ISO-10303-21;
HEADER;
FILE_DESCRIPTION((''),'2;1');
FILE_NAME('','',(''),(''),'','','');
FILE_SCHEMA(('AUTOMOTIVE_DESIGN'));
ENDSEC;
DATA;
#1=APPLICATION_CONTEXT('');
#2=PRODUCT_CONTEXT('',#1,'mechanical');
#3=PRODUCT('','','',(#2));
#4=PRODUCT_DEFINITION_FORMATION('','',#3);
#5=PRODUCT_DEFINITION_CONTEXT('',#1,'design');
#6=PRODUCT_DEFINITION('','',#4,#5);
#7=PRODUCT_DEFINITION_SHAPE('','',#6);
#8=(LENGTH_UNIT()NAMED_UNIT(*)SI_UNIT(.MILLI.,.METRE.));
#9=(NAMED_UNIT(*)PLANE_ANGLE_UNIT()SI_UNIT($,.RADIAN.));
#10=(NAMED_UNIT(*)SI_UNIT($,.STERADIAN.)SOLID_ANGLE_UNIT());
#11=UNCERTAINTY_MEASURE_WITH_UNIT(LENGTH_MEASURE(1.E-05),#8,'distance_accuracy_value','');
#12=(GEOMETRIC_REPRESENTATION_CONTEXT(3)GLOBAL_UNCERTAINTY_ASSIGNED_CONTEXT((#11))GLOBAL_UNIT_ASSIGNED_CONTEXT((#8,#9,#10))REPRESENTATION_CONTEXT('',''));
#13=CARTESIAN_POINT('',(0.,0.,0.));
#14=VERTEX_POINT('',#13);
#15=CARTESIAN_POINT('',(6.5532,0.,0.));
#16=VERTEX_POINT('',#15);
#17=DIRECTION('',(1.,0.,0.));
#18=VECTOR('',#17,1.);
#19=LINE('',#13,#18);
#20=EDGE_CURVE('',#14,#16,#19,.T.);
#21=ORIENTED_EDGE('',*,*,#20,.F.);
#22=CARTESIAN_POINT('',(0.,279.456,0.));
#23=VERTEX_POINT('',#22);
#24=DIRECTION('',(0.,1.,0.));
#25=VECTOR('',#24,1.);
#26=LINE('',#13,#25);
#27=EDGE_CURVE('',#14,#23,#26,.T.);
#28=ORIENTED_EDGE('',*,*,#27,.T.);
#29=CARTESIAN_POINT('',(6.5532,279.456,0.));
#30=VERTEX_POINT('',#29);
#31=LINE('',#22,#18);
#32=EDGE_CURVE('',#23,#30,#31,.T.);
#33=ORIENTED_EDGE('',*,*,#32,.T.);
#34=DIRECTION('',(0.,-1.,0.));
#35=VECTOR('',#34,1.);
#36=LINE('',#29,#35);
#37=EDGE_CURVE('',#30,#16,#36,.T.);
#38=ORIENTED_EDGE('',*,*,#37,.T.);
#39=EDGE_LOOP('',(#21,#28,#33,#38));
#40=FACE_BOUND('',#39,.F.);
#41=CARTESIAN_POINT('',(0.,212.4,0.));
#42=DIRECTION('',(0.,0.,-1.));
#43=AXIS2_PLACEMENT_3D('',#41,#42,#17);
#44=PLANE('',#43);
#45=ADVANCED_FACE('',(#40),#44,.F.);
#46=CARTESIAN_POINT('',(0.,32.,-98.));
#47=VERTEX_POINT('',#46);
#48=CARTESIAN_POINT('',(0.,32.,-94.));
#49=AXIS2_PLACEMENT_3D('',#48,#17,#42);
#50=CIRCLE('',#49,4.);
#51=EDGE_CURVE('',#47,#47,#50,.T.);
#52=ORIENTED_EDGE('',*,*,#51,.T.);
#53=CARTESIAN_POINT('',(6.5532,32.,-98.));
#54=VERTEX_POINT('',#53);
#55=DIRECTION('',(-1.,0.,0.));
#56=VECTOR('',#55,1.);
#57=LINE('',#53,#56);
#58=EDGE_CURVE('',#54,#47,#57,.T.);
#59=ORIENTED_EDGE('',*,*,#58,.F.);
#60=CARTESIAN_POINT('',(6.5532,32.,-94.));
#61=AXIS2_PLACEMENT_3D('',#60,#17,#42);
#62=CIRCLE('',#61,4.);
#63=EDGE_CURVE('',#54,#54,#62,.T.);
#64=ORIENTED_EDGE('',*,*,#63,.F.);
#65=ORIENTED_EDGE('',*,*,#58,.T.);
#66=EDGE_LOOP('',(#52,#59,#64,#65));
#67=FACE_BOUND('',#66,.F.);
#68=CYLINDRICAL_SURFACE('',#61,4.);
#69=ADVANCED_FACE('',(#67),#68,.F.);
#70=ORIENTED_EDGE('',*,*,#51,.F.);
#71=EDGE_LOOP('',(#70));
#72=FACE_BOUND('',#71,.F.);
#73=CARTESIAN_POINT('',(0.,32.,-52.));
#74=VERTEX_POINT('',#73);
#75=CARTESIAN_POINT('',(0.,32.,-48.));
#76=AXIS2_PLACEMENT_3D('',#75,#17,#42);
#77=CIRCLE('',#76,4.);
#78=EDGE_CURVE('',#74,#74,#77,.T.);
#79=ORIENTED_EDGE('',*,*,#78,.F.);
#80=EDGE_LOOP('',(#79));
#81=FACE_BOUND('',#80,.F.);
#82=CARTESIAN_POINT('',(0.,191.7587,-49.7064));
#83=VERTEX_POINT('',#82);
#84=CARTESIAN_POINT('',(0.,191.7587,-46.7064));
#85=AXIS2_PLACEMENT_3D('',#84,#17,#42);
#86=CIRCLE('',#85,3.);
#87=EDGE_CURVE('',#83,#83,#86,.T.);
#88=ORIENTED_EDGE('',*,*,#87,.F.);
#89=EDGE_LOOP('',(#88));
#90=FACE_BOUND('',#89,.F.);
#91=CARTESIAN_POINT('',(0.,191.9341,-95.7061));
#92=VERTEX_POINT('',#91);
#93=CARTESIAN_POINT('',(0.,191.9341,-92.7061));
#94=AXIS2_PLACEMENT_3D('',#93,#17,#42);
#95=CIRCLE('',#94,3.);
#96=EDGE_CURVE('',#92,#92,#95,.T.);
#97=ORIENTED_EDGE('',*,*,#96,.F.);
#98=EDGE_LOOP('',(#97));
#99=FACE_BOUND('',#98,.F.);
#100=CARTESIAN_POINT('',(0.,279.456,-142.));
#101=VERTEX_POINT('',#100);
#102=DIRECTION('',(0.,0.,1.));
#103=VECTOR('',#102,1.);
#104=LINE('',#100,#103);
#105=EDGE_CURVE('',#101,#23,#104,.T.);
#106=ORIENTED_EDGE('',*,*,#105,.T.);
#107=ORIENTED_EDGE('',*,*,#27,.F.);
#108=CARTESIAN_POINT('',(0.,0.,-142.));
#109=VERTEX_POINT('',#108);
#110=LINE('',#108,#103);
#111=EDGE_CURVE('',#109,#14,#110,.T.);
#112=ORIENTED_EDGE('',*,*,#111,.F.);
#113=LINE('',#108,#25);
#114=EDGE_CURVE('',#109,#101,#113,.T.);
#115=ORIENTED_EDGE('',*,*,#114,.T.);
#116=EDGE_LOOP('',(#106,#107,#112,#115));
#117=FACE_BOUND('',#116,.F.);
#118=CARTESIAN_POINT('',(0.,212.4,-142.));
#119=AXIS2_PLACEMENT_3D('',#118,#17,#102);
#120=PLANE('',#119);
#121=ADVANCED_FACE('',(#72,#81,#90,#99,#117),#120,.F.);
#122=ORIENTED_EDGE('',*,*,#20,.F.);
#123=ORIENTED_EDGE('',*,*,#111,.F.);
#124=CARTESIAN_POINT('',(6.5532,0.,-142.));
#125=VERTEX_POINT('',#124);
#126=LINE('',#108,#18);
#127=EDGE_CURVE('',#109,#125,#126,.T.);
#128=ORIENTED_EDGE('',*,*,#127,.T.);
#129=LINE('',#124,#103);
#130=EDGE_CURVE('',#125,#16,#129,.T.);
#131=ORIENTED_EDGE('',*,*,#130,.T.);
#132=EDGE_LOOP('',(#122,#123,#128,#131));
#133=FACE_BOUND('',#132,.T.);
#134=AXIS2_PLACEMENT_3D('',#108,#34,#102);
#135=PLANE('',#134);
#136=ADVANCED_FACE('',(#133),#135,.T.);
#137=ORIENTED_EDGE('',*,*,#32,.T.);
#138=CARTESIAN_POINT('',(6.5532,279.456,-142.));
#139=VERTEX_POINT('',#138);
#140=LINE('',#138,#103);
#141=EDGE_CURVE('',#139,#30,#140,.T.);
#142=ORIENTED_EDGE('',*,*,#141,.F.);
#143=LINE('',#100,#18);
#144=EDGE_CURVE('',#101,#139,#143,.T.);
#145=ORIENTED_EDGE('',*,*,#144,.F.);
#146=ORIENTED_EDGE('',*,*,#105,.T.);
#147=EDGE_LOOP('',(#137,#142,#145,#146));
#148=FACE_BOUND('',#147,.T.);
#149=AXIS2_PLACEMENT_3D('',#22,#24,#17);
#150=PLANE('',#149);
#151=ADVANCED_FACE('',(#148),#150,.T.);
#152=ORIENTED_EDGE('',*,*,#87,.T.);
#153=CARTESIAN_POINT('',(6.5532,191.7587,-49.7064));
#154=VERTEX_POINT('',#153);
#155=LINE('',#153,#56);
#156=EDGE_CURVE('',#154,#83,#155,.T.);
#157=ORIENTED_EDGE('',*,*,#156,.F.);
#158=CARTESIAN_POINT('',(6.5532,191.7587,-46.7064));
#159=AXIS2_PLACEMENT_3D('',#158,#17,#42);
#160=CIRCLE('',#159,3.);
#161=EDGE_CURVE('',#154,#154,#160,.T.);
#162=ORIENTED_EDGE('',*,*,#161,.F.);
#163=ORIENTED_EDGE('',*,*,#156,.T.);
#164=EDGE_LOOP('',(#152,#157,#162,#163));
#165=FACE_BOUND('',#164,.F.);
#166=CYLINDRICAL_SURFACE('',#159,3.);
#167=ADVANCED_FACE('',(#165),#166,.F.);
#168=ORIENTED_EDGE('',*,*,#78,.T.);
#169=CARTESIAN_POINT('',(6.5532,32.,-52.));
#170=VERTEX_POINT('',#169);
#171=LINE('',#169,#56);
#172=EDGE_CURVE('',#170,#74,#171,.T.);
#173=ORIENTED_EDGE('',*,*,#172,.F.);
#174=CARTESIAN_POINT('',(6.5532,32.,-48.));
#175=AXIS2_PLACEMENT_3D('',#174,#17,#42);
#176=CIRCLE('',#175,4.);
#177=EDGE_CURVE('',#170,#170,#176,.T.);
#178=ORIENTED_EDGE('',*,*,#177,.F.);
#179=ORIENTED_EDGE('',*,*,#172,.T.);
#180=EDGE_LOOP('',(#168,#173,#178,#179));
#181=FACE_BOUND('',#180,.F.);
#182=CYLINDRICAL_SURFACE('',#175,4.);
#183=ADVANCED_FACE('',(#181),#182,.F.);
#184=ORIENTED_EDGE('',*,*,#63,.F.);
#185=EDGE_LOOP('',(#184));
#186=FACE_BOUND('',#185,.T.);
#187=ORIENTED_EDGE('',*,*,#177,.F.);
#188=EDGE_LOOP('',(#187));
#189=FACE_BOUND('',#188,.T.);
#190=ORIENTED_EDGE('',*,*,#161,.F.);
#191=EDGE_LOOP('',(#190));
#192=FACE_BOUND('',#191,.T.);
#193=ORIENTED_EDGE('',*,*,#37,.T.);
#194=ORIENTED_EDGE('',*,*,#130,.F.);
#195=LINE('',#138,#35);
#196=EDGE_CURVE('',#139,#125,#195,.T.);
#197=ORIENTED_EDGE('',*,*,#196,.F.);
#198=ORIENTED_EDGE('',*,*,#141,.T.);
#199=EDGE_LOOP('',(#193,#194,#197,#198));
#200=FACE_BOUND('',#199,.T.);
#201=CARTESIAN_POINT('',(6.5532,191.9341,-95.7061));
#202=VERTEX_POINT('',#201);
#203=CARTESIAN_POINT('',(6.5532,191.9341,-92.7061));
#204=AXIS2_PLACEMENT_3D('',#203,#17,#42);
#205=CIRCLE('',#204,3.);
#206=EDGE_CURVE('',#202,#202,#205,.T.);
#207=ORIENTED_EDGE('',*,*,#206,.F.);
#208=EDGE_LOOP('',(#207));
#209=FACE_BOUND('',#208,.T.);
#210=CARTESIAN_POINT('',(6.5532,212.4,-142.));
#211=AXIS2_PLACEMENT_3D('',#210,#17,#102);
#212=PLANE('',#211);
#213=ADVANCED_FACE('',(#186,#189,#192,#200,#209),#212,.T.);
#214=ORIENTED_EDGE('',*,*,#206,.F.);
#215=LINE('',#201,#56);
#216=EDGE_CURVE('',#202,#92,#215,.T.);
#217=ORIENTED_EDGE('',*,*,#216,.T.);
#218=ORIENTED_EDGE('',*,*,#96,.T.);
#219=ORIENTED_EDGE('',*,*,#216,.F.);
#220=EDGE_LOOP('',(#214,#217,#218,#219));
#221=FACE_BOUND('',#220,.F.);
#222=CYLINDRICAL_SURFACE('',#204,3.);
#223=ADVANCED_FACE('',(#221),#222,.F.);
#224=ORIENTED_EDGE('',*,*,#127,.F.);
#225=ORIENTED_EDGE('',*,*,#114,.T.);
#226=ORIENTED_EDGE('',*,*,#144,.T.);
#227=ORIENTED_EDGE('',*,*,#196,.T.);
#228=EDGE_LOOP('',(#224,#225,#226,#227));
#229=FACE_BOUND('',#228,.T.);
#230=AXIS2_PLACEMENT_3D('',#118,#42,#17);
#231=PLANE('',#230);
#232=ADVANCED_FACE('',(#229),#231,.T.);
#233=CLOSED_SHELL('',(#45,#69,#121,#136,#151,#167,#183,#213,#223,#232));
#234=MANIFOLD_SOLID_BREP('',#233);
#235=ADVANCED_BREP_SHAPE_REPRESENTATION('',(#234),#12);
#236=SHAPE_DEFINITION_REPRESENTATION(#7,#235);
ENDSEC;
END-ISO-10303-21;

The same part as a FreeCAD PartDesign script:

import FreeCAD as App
import Part
import Sketcher
from FreeCAD import Vector
Q = App.Units.Quantity


def add_polygon(sketch, points):
    """Adds a closed chain of lines whose ends are joined by coincident constraints."""
    first, n = sketch.GeometryCount, len(points)
    for a, b in zip(points, points[1:] + points[:1]):
        sketch.addGeometry(Part.LineSegment(App.Vector(*a, 0), App.Vector(*b, 0)), False)
    for i in range(n):
        sketch.addConstraint(Sketcher.Constraint("Coincident", first + i, 2, first + (i + 1) % n, 1))

doc = App.newDocument("Part")
params = doc.addObject("Spreadsheet::Sheet", "Params")
for row, (alias, value) in enumerate([
    ("pad1_length", "0.258 in"),
    ("pocket1_length", "0.3 in"),
    ("sketch3_width", "0.258 in"),
    ("pad2_length", "2.64 in"),
    ("pocket2_length", "1 in"),
], start=1):
    params.set(f"A{row}", alias)
    params.set(f"B{row}", "=" + value)
    params.setAlias(f"B{row}", alias)

body = doc.addObject("PartDesign::Body", "Body")

# Sketch on YZ plane
sketch1 = body.newObject("Sketcher::SketchObject", "Sketch")
sketch1.AttachmentSupport = (doc.getObject("YZ_Plane"), [""])
sketch1.MapMode = "FlatFace"
add_polygon(sketch1, [(212, 0), (0, 0), (0, -142), (212, -142)])  # lines 0-3
sketch1.addConstraint([
    Sketcher.Constraint("Horizontal", 0),
    Sketcher.Constraint("Vertical", 1),
    Sketcher.Constraint("Horizontal", 2),
    Sketcher.Constraint("Vertical", 3),
    Sketcher.Constraint("Coincident", 0, 2, -1, 1),
    Sketcher.Constraint("DistanceX", 0, 2, 0, 1, Q("8.3622 in")),
    Sketcher.Constraint("DistanceY", 1, 2, 1, 1, 142.0),
])
pad1 = body.newObject("PartDesign::Pad", "Pad")
pad1.Profile = sketch1
pad1.setExpression("Length", "Params.pad1_length")

# Sketch on YZ plane
sketch2 = body.newObject("Sketcher::SketchObject", "Sketch001")
sketch2.AttachmentSupport = (doc.getObject("YZ_Plane"), [""])
sketch2.MapMode = "FlatFace"
sketch2.AttachmentOffset = App.Placement(Vector(0, 0, 0.258 * 25.4), App.Rotation())
sketch2.addGeometry([
    Part.Circle(Vector(32, -48, 0), Vector(0, 0, 1), 4),
    Part.Circle(Vector(32, -94, 0), Vector(0, 0, 1), 4),
], False)
sketch2.addConstraint([
    Sketcher.Constraint("Equal", 0, 1),
    Sketcher.Constraint("Vertical", 0, 3, 1, 3),
    Sketcher.Constraint("Diameter", 0, 8.0),
    Sketcher.Constraint("DistanceX", -1, 1, 0, 3, 32.0),
    Sketcher.Constraint("DistanceY", 1, 3, 0, 3, 46.0),
    Sketcher.Constraint("DistanceY", 0, 3, -1, 1, 48.0),
])
pocket1 = body.newObject("PartDesign::Pocket", "Pocket")
pocket1.Profile = sketch2
pocket1.setExpression("Length", "Params.pocket1_length")

# Sketch on XZ plane
sketch3 = body.newObject("Sketcher::SketchObject", "Sketch002")
sketch3.AttachmentSupport = (doc.getObject("XZ_Plane"), [""])
sketch3.MapMode = "FlatFace"
sketch3.AttachmentOffset = App.Placement(Vector(0, 0, -8.3622047 * 25.4), App.Rotation())
add_polygon(sketch3, [(7, -142), (0, -142), (0, 0), (7, 0)])  # lines 0-3
sketch3.addConstraint([
    Sketcher.Constraint("Horizontal", 0),
    Sketcher.Constraint("Vertical", 1),
    Sketcher.Constraint("Horizontal", 2),
    Sketcher.Constraint("Vertical", 3),
    Sketcher.Constraint("Coincident", 1, 2, -1, 1),
    Sketcher.Constraint("DistanceX", 0, 2, 0, 1, Q("0.258 in")),
    Sketcher.Constraint("DistanceY", 1, 1, 1, 2, 142.0),
])
sketch3.setExpression("Constraints[9]", "Params.sketch3_width")
pad2 = body.newObject("PartDesign::Pad", "Pad001")
pad2.Profile = sketch3
pad2.setExpression("Length", "Params.pad2_length")
pad2.Reversed = True

# Sketch on YZ plane
sketch4 = body.newObject("Sketcher::SketchObject", "Sketch003")
sketch4.AttachmentSupport = (doc.getObject("YZ_Plane"), [""])
sketch4.MapMode = "FlatFace"
sketch4.AttachmentOffset = App.Placement(Vector(0, 0, 0.258 * 25.4), App.Rotation())
sketch4.addGeometry([
    Part.Circle(Vector(191.9, -92.7, 0), Vector(0, 0, 1), 3),
    Part.Circle(Vector(191.8, -46.7, 0), Vector(0, 0, 1), 3),
], False)
sketch4.addConstraint([
    Sketcher.Constraint("Equal", 0, 1),
    Sketcher.Constraint("Diameter", 0, 6.0),
    Sketcher.Constraint("DistanceY", 0, 3, 1, 3, Q("1.811 in")),
    Sketcher.Constraint("DistanceX", 1, 3, 0, 3, Q("0.0069 in")),
    Sketcher.Constraint("DistanceX", -1, 1, 0, 3, 191.934),
    Sketcher.Constraint("DistanceY", 0, 3, -1, 1, 92.706),
])
pocket2 = body.newObject("PartDesign::Pocket", "Pocket001")
pocket2.Profile = sketch4
pocket2.setExpression("Length", "Params.pocket2_length")

doc.recompute()
